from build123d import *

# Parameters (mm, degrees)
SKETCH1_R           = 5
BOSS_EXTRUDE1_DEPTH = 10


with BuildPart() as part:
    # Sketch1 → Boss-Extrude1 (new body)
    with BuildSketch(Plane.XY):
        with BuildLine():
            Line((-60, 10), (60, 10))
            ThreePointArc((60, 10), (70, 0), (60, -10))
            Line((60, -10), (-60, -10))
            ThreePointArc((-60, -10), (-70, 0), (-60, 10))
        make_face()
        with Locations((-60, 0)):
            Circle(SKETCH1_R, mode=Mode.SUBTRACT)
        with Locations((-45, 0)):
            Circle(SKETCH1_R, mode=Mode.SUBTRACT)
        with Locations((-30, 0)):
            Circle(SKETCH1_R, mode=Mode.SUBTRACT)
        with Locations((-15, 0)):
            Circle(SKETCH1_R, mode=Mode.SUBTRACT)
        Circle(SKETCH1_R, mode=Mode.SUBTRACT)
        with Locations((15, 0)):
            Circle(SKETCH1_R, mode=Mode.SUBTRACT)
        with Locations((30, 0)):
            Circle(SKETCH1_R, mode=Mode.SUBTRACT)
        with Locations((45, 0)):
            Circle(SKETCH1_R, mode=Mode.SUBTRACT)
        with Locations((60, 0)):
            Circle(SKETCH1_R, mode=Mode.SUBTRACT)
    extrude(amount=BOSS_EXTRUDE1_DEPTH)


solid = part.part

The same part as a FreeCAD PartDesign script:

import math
import FreeCAD as App
import Part
import Sketcher
from FreeCAD import Vector
Q = App.Units.Quantity

doc = App.newDocument("Part")
params = doc.addObject("Spreadsheet::Sheet", "Params")
for row, (alias, value) in enumerate([
    ("sketch1_diameter", "10 mm"),
    ("sketch1_radius", "10 mm"),
    ("sketch1_width", "120 mm"),
    ("pad1_length", "10 mm"),
], start=1):
    params.set(f"A{row}", alias)
    params.set(f"B{row}", "=" + value)
    params.setAlias(f"B{row}", alias)

body = doc.addObject("PartDesign::Body", "Body")

# Sketch on XY plane
sketch1 = body.newObject("Sketcher::SketchObject", "Sketch")
sketch1.AttachmentSupport = (doc.getObject("XY_Plane"), [""])
sketch1.MapMode = "FlatFace"
sketch1.addGeometry(Part.LineSegment(Vector(60, 10, 0), Vector(-60, 10, 0)), False)
sketch1.addGeometry(Part.ArcOfCircle(Part.Circle(Vector(-60, 0, 0), Vector(0, 0, 1), 10), math.radians(90), math.radians(270)), False)
sketch1.addGeometry(Part.LineSegment(Vector(-60, -10, 0), Vector(60, -10, 0)), False)
sketch1.addGeometry(Part.ArcOfCircle(Part.Circle(Vector(60, 0, 0), Vector(0, 0, 1), 10), math.radians(-90), math.radians(90)), False)
sketch1.addGeometry(Part.Circle(Vector(60, 0, 0), Vector(0, 0, 1), 5), False)
sketch1.addGeometry(Part.Circle(Vector(45, 0, 0), Vector(0, 0, 1), 5), False)
sketch1.addGeometry(Part.Circle(Vector(30, 0, 0), Vector(0, 0, 1), 5), False)
sketch1.addGeometry(Part.Circle(Vector(15, 0, 0), Vector(0, 0, 1), 5), False)
sketch1.addGeometry(Part.Circle(Vector(0, 0, 0), Vector(0, 0, 1), 5), False)
sketch1.addGeometry(Part.Circle(Vector(-15, 0, 0), Vector(0, 0, 1), 5), False)
sketch1.addGeometry(Part.Circle(Vector(-30, 0, 0), Vector(0, 0, 1), 5), False)
sketch1.addGeometry(Part.Circle(Vector(-45, 0, 0), Vector(0, 0, 1), 5), False)
sketch1.addGeometry(Part.Circle(Vector(-60, 0, 0), Vector(0, 0, 1), 5), False)
sketch1.addConstraint(Sketcher.Constraint("Tangent", 0, 2, 1, 1))
sketch1.addConstraint(Sketcher.Constraint("Tangent", 1, 2, 2, 1))
sketch1.addConstraint(Sketcher.Constraint("Tangent", 2, 2, 3, 1))
sketch1.addConstraint(Sketcher.Constraint("Tangent", 3, 2, 0, 1))
sketch1.addConstraint(Sketcher.Constraint("Horizontal", 0))
sketch1.addConstraint(Sketcher.Constraint("Horizontal", 2))
sketch1.addConstraint(Sketcher.Constraint("Coincident", 8, 3, -1, 1))
sketch1.addConstraint(Sketcher.Constraint("Coincident", 4, 3, 3, 3))
sketch1.addConstraint(Sketcher.Constraint("Coincident", 12, 3, 1, 3))
sketch1.addConstraint(Sketcher.Constraint("Equal", 4, 5))
sketch1.addConstraint(Sketcher.Constraint("Equal", 5, 6))
sketch1.addConstraint(Sketcher.Constraint("Equal", 6, 7))
sketch1.addConstraint(Sketcher.Constraint("Equal", 7, 8))
sketch1.addConstraint(Sketcher.Constraint("Equal", 8, 9))
sketch1.addConstraint(Sketcher.Constraint("Equal", 9, 10))
sketch1.addConstraint(Sketcher.Constraint("Equal", 10, 11))
sketch1.addConstraint(Sketcher.Constraint("Equal", 11, 12))
sketch1.addConstraint(Sketcher.Constraint("Symmetric", 1, 3, 3, 3, -1, 1))
sketch1.addConstraint(Sketcher.Constraint("Symmetric", 7, 3, 9, 3, -1, 1))
sketch1.addConstraint(Sketcher.Constraint("Symmetric", 6, 3, 10, 3, -1, 1))
sketch1.addConstraint(Sketcher.Constraint("Symmetric", 5, 3, 11, 3, -1, 1))
sketch1.addConstraint(Sketcher.Constraint("PointOnObject", 5, 3, -1))
sketch1.addConstraint(Sketcher.Constraint("PointOnObject", 6, 3, -1))
sketch1.addConstraint(Sketcher.Constraint("PointOnObject", 7, 3, -1))
sketch1.addConstraint(Sketcher.Constraint("Diameter", 4, Q("10 mm")))
sketch1.addConstraint(Sketcher.Constraint("Radius", 1, Q("10 mm")))
sketch1.addConstraint(Sketcher.Constraint("DistanceX", 0, 2, 0, 1, Q("120 mm")))
sketch1.addConstraint(Sketcher.Constraint("DistanceX", -1, 1, 5, 3, Q("45 mm")))
sketch1.addConstraint(Sketcher.Constraint("DistanceX", -1, 1, 6, 3, Q("30 mm")))
sketch1.addConstraint(Sketcher.Constraint("DistanceX", -1, 1, 7, 3, Q("15 mm")))
sketch1.setExpression("Constraints[24]", "Params.sketch1_diameter")
sketch1.setExpression("Constraints[25]", "Params.sketch1_radius")
sketch1.setExpression("Constraints[26]", "Params.sketch1_width")
pad1 = body.newObject("PartDesign::Pad", "Pad")
pad1.Profile = sketch1
pad1.setExpression("Length", "Params.pad1_length")

doc.recompute()
